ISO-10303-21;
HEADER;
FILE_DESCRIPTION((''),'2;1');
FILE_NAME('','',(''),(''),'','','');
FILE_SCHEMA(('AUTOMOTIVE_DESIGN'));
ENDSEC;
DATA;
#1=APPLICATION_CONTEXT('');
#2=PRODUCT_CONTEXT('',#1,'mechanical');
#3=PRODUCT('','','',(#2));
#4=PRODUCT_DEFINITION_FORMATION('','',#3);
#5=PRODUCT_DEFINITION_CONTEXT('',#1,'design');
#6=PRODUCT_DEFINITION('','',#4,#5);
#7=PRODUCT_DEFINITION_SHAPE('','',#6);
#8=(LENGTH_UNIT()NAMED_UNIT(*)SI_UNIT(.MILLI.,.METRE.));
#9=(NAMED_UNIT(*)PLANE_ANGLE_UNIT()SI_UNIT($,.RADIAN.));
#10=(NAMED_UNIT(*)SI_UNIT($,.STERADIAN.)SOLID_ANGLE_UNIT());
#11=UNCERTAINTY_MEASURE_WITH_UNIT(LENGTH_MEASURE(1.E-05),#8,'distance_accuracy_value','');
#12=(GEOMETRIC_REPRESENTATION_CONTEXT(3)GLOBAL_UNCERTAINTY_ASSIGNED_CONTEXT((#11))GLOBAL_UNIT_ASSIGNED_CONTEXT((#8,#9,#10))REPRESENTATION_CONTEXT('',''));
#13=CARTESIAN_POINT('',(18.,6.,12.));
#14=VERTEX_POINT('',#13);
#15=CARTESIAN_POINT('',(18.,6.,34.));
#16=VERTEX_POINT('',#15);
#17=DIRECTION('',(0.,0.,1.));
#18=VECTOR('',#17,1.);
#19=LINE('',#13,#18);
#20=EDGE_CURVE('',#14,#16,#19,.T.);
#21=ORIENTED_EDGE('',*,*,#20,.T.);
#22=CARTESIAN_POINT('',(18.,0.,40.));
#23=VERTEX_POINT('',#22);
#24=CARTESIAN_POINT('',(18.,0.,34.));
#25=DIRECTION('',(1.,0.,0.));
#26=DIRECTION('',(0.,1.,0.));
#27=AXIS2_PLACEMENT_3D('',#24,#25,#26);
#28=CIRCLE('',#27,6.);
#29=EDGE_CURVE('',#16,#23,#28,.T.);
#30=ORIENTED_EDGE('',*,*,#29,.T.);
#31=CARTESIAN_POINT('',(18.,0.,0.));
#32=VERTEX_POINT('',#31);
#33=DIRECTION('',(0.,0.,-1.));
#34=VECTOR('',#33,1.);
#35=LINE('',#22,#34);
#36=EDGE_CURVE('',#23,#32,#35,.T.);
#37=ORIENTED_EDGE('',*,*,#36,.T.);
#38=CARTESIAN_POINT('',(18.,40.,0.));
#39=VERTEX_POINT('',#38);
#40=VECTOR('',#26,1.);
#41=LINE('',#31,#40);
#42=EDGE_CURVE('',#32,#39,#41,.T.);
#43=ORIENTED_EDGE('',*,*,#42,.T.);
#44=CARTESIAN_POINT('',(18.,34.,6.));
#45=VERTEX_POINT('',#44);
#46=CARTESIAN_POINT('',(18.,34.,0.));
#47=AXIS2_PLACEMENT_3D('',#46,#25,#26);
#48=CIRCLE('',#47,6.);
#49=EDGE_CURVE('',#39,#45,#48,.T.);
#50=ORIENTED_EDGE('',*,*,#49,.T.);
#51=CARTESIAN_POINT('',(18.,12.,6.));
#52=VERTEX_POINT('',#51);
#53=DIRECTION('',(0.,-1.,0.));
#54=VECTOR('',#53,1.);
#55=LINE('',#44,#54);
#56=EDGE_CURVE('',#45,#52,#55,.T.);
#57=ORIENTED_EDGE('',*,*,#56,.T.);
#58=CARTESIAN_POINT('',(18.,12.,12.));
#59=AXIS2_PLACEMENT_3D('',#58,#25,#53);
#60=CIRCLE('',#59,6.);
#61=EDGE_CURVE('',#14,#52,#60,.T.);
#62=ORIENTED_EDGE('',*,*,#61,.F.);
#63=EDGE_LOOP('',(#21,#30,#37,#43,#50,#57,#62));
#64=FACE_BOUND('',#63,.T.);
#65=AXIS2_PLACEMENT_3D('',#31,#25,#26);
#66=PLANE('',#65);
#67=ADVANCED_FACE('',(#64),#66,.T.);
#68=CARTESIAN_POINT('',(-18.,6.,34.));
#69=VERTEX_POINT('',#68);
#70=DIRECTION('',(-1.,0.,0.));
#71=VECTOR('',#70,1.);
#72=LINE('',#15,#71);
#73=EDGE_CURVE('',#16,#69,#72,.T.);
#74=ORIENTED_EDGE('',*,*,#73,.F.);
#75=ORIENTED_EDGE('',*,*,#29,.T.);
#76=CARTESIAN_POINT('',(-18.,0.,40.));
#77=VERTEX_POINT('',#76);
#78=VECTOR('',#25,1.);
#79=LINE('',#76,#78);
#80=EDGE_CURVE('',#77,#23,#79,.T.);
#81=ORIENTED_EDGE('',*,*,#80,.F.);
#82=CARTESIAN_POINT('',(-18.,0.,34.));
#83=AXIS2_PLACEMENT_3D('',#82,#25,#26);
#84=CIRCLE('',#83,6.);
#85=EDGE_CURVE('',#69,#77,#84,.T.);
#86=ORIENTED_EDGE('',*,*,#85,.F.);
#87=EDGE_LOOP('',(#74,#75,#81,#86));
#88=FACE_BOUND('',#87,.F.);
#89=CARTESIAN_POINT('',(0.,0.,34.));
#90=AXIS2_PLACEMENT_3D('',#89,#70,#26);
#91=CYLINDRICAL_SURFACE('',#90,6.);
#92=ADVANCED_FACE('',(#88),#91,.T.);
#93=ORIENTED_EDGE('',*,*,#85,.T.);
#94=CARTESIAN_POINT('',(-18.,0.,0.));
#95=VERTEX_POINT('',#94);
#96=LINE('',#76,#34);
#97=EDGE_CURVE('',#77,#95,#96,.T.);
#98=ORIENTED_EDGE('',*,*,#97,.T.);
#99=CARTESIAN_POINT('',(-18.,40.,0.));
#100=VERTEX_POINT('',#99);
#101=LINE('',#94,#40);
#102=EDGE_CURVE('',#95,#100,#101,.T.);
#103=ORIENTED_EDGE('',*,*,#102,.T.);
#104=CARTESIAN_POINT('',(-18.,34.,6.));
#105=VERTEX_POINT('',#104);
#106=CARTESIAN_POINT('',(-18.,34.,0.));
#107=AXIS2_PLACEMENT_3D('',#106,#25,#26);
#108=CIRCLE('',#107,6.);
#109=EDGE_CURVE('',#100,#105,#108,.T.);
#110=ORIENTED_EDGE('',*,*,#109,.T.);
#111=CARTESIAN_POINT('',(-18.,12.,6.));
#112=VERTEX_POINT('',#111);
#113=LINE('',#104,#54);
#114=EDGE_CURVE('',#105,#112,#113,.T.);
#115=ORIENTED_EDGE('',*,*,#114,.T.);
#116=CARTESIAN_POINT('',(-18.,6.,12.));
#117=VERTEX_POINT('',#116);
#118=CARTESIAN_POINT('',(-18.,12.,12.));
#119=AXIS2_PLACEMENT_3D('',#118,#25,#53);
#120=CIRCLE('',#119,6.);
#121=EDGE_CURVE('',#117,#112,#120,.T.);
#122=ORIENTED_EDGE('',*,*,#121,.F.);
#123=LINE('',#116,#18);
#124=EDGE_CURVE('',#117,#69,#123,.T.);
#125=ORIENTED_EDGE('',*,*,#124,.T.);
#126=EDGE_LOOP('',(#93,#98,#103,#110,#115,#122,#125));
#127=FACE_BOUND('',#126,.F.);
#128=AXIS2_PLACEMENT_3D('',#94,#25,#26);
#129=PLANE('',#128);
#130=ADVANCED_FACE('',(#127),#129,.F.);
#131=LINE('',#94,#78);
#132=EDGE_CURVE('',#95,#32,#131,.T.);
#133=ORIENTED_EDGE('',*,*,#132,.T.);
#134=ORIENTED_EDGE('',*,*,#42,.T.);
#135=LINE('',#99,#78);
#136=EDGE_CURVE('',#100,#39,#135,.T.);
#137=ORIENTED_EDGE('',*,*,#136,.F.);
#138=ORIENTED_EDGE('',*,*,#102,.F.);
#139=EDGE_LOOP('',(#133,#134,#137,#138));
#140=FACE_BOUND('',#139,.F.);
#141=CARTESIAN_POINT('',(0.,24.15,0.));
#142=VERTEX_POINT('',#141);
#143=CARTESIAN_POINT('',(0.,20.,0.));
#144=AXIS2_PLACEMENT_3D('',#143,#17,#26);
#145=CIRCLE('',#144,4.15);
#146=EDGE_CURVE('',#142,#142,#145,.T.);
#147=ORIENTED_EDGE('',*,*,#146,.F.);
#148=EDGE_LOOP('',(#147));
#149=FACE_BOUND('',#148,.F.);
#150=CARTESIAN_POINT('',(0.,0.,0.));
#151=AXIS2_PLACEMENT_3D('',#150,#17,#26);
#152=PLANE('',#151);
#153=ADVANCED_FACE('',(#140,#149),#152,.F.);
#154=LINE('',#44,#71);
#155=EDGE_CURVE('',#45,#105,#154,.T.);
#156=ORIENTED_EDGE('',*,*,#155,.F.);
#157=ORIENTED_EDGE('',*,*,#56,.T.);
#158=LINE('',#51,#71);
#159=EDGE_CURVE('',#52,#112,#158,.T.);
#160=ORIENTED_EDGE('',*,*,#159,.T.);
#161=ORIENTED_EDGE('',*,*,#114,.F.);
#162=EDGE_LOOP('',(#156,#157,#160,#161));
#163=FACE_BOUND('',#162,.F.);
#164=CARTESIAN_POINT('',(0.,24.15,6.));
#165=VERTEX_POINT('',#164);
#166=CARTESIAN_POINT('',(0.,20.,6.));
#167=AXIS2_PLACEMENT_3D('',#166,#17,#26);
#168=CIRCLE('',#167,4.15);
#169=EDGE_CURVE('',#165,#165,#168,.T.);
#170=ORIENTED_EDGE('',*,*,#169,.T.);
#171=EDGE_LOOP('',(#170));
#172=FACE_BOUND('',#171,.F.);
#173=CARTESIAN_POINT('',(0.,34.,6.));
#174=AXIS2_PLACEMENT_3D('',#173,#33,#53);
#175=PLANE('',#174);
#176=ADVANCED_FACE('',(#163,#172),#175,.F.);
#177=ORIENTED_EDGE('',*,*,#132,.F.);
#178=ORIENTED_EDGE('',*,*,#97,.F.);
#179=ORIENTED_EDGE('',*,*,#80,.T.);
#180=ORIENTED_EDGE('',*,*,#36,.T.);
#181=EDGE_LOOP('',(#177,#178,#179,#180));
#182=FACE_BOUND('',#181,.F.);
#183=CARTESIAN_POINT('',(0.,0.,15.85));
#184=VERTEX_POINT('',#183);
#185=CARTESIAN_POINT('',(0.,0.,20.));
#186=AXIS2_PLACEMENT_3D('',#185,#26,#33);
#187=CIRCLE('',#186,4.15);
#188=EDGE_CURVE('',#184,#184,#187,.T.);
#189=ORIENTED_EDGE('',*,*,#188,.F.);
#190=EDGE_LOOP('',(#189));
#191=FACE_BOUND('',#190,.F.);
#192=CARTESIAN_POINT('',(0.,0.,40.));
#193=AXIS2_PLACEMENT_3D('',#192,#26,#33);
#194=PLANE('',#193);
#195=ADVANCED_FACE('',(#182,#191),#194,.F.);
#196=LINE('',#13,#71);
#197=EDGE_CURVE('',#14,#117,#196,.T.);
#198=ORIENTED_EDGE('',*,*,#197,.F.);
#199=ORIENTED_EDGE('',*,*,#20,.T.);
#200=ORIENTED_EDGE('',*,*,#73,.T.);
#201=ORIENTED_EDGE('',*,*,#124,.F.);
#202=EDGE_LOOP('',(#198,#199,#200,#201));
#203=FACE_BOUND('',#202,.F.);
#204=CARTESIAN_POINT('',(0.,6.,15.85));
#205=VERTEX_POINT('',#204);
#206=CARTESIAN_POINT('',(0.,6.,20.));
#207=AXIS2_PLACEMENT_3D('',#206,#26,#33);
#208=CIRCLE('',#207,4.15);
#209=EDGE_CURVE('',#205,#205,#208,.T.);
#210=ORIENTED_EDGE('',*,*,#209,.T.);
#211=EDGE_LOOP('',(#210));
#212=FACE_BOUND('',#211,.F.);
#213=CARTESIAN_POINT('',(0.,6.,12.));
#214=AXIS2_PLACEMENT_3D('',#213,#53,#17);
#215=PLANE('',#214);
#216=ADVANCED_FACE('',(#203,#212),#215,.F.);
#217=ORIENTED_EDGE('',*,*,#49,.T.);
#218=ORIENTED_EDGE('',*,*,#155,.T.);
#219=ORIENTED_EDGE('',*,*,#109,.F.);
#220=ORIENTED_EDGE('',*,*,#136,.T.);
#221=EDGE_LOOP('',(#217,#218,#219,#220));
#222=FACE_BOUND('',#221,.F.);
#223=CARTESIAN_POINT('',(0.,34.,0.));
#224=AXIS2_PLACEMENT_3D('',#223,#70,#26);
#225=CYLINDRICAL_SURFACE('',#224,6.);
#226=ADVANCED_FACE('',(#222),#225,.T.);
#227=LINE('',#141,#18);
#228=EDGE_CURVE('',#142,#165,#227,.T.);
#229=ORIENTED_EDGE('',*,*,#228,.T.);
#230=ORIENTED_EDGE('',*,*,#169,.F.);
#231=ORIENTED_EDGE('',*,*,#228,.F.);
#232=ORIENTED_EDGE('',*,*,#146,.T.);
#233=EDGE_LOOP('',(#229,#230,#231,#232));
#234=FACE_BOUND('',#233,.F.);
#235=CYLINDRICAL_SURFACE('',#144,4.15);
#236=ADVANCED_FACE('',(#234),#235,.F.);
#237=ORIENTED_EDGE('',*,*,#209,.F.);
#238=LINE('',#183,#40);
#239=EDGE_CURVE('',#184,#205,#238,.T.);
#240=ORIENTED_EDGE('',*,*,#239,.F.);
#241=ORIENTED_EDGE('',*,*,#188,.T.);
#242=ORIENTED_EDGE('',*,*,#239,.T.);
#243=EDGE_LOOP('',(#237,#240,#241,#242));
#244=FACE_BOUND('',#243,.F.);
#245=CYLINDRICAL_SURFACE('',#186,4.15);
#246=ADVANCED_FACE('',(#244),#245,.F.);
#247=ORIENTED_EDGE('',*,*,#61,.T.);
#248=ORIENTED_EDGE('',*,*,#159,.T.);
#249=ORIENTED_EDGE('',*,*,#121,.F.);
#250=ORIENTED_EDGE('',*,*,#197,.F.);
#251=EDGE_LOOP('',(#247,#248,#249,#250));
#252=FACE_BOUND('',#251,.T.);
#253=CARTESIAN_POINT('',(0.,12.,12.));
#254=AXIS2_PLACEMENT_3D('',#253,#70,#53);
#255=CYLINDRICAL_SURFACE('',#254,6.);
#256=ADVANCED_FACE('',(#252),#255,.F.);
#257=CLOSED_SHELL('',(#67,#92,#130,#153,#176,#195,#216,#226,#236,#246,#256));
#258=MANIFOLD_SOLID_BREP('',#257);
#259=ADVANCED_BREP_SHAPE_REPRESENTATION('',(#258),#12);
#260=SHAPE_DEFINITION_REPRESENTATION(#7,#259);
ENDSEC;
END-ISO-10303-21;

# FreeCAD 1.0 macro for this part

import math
import FreeCAD as App
import Part
import Sketcher

V = App.Vector
Q = App.Units.Quantity

doc = App.newDocument("Part")
body = doc.addObject("PartDesign::Body", "Body")

# Sketch on YZ plane
sketch1 = body.newObject("Sketcher::SketchObject", "Sketch")
sketch1.AttachmentSupport = (doc.getObject("YZ_Plane"), [""])
sketch1.MapMode = "FlatFace"
sketch1.addGeometry(Part.ArcOfCircle(Part.Circle(V(0, 34, 0), V(0, 0, 1), 6), math.radians(0), math.radians(90)), False)
sketch1.addGeometry(Part.LineSegment(V(0, 40, 0), V(0, 0, 0)), False)
sketch1.addGeometry(Part.LineSegment(V(0, 0, 0), V(40, 0, 0)), False)
sketch1.addGeometry(Part.ArcOfCircle(Part.Circle(V(34, 0, 0), V(0, 0, 1), 6), math.radians(0), math.radians(90)), False)
sketch1.addGeometry(Part.LineSegment(V(34, 6, 0), V(12, 6, 0)), False)
sketch1.addGeometry(Part.ArcOfCircle(Part.Circle(V(12, 12, 0), V(0, 0, 1), 6), math.radians(180), math.radians(270)), False)
sketch1.addGeometry(Part.LineSegment(V(6, 12, 0), V(6, 34, 0)), False)
sketch1.addConstraint(Sketcher.Constraint("Coincident", 0, 2, 1, 1))
sketch1.addConstraint(Sketcher.Constraint("Coincident", 1, 2, 2, 1))
sketch1.addConstraint(Sketcher.Constraint("Coincident", 2, 2, 3, 1))
sketch1.addConstraint(Sketcher.Constraint("Tangent", 3, 2, 4, 1))
sketch1.addConstraint(Sketcher.Constraint("Tangent", 4, 2, 5, 2))
sketch1.addConstraint(Sketcher.Constraint("Tangent", 5, 1, 6, 1))
sketch1.addConstraint(Sketcher.Constraint("Tangent", 6, 2, 0, 1))
sketch1.addConstraint(Sketcher.Constraint("Vertical", 1))
sketch1.addConstraint(Sketcher.Constraint("Horizontal", 2))
sketch1.addConstraint(Sketcher.Constraint("Horizontal", 4))
sketch1.addConstraint(Sketcher.Constraint("Vertical", 6))
sketch1.addConstraint(Sketcher.Constraint("Coincident", 1, 2, -1, 1))
sketch1.addConstraint(Sketcher.Constraint("Equal", 0, 3))
sketch1.addConstraint(Sketcher.Constraint("Equal", 3, 5))
sketch1.addConstraint(Sketcher.Constraint("PointOnObject", 0, 3, -2))
sketch1.addConstraint(Sketcher.Constraint("PointOnObject", 3, 3, -1))
sketch1.addConstraint(Sketcher.Constraint("Equal", 2, 1))
sketch1.addConstraint(Sketcher.Constraint("Radius", 0, Q("6 mm")))
sketch1.addConstraint(Sketcher.Constraint("DistanceX", 2, 1, 2, 2, Q("40 mm")))
pad1 = body.newObject("PartDesign::Pad", "Pad")
pad1.Profile = sketch1
pad1.Length = 36
pad1.Midplane = True

# Sketch on XY plane
sketch2 = body.newObject("Sketcher::SketchObject", "Sketch001")
sketch2.AttachmentSupport = (doc.getObject("XY_Plane"), [""])
sketch2.MapMode = "FlatFace"
sketch2.addGeometry(Part.Circle(V(0, 20, 0), V(0, 0, 1), 4.2), False)
sketch2.addConstraint(Sketcher.Constraint("PointOnObject", 0, 3, -2))
sketch2.addConstraint(Sketcher.Constraint("Diameter", 0, Q("8.3 mm")))
sketch2.addConstraint(Sketcher.Constraint("DistanceY", -1, 1, 0, 3, Q("20 mm")))
doc.recompute()
hole = body.newObject("PartDesign::Hole", "Hole")
hole.Profile = sketch2
hole.ThreadType = "None"
hole.Diameter = 8.3
hole.DepthType = "Dimension"
hole.Depth = 6
hole.DrillPoint = "Flat"
hole.Reversed = True

# Sketch on XZ plane
sketch3 = body.newObject("Sketcher::SketchObject", "Sketch002")
sketch3.AttachmentSupport = (doc.getObject("XZ_Plane"), [""])
sketch3.MapMode = "FlatFace"
sketch3.addGeometry(Part.Circle(V(0, 20, 0), V(0, 0, 1), 4.2), False)
sketch3.addConstraint(Sketcher.Constraint("PointOnObject", 0, 3, -2))
sketch3.addConstraint(Sketcher.Constraint("Diameter", 0, Q("8.3 mm")))
sketch3.addConstraint(Sketcher.Constraint("DistanceY", -1, 1, 0, 3, Q("20 mm")))
doc.recompute()
hole2 = body.newObject("PartDesign::Hole", "Hole001")
hole2.Profile = sketch3
hole2.ThreadType = "None"
hole2.Diameter = 8.3
hole2.DepthType = "Dimension"
hole2.Depth = 6
hole2.DrillPoint = "Flat"

doc.recompute()
